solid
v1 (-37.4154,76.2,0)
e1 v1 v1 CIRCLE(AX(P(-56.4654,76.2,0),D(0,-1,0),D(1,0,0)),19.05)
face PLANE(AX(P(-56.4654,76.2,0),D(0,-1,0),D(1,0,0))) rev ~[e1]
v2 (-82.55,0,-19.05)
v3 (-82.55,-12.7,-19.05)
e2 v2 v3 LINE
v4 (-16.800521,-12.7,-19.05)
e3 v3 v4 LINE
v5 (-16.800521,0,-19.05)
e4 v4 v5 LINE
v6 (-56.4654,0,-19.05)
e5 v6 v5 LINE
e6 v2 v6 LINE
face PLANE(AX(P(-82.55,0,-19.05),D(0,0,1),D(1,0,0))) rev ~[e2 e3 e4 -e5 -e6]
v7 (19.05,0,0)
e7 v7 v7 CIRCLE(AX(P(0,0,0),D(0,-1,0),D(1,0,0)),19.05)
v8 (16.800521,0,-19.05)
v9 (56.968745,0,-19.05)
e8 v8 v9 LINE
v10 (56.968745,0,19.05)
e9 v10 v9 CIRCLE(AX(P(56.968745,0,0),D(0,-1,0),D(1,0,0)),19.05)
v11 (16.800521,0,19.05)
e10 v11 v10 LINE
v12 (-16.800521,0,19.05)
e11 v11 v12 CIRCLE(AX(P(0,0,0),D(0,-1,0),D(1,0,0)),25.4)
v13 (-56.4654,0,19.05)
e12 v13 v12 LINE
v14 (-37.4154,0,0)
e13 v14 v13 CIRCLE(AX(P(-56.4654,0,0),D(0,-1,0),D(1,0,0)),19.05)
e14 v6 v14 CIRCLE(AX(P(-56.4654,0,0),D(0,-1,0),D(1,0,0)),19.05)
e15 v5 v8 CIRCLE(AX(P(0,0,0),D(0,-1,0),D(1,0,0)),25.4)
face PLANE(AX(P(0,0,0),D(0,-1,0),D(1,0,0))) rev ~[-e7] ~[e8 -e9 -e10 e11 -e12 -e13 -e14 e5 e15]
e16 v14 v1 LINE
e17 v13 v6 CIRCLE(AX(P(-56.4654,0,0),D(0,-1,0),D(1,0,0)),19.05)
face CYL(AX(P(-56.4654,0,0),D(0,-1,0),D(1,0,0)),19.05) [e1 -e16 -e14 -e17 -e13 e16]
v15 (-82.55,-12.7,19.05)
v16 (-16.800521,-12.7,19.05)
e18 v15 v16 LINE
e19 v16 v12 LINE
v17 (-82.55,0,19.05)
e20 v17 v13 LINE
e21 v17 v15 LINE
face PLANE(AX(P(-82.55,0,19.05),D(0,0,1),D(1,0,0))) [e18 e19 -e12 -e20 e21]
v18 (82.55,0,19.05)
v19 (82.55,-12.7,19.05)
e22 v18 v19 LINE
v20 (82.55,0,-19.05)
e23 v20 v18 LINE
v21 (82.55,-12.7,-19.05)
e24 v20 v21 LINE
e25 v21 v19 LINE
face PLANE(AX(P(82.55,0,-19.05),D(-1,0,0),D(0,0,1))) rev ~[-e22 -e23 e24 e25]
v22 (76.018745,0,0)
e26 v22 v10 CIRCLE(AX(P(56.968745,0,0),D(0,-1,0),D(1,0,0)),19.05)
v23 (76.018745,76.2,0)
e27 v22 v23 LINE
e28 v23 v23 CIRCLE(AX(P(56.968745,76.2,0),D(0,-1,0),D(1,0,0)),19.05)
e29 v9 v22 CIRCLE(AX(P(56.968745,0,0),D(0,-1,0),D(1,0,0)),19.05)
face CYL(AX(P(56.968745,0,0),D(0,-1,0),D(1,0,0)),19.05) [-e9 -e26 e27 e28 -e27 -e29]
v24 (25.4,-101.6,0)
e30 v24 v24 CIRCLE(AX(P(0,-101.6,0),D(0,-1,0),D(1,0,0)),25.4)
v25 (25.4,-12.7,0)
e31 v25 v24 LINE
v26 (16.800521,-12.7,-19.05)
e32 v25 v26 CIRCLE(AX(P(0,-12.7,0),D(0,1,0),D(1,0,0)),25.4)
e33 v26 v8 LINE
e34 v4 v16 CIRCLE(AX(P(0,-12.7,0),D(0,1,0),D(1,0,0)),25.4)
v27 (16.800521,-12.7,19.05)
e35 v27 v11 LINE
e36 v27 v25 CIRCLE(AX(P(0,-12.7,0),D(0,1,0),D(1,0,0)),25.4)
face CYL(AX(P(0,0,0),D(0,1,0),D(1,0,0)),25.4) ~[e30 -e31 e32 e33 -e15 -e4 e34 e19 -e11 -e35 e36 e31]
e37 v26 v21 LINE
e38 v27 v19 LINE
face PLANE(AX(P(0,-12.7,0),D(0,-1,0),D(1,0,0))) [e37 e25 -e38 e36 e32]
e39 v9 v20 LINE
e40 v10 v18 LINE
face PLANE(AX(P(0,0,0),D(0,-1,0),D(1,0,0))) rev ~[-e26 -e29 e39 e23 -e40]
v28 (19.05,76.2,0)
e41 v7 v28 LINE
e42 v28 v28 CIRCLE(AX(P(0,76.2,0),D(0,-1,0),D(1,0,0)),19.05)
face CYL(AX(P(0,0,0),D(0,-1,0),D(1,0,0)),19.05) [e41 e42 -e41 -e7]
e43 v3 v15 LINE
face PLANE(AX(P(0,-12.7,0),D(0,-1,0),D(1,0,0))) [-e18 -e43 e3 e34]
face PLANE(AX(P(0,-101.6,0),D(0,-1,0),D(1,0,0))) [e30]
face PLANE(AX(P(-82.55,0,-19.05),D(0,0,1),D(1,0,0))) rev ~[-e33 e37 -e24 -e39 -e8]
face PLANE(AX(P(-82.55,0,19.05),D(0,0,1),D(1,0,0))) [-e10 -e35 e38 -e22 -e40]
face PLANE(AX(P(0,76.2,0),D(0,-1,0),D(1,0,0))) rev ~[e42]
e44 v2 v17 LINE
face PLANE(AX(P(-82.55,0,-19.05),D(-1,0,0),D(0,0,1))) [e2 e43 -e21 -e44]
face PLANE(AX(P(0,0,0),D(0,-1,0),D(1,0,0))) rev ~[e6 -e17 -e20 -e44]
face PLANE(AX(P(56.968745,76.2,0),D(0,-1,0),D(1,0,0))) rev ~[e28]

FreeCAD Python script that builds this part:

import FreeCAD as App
import Part
import Sketcher
Q = App.Units.Quantity

doc = App.newDocument("Part")
body = doc.addObject("PartDesign::Body", "Body")

sketch1 = body.newObject("Sketcher::SketchObject", "Sketch")
sketch1.AttachmentSupport = (doc.getObject("XZ_Plane"), [""])
sketch1.MapMode = "FlatFace"
sketch1.addGeometry([
    Part.LineSegment(App.Vector(-83, 19, 0), App.Vector(-83, -19, 0)),
    Part.LineSegment(App.Vector(-83, -19, 0), App.Vector(83, -19, 0)),
    Part.LineSegment(App.Vector(83, -19, 0), App.Vector(83, 19, 0)),
    Part.LineSegment(App.Vector(83, 19, 0), App.Vector(-83, 19, 0)),
], False)
sketch1.addConstraint([
    Sketcher.Constraint("Coincident", 0, 2, 1, 1),
    Sketcher.Constraint("Coincident", 1, 2, 2, 1),
    Sketcher.Constraint("Coincident", 2, 2, 3, 1),
    Sketcher.Constraint("Coincident", 3, 2, 0, 1),
    Sketcher.Constraint("Vertical", 0),
    Sketcher.Constraint("Horizontal", 1),
    Sketcher.Constraint("Vertical", 2),
    Sketcher.Constraint("Horizontal", 3),
    Sketcher.Constraint("Symmetric", 0, 2, 2, 2, -1, 1),
    Sketcher.Constraint("DistanceX", 1, 1, 1, 2, Q("6.5 in")),
    Sketcher.Constraint("DistanceY", 0, 2, 0, 1, Q("1.5 in")),
])
pad1 = body.newObject("PartDesign::Pad", "Pad")
pad1.Profile = sketch1
pad1.Length = Q("0.5 in")

sketch2 = body.newObject("Sketcher::SketchObject", "Sketch001")
sketch2.AttachmentSupport = (doc.getObject("XZ_Plane"), [""])
sketch2.MapMode = "FlatFace"
sketch2.addGeometry(Part.Circle(App.Vector(0, 0, 0), App.Vector(0, 0, 1), 25), False)
sketch2.addConstraint([
    Sketcher.Constraint("Coincident", 0, 3, -1, 1),
    Sketcher.Constraint("Diameter", 0, Q("2 in")),
])
pad2 = body.newObject("PartDesign::Pad", "Pad001")
pad2.Profile = sketch2
pad2.Length = Q("4 in")

sketch3 = body.newObject("Sketcher::SketchObject", "Sketch002")
sketch3.AttachmentSupport = (doc.getObject("XZ_Plane"), [""])
sketch3.MapMode = "FlatFace"
sketch3.addGeometry([
    Part.Circle(App.Vector(57, 0, 0), App.Vector(0, 0, 1), 19),
    Part.Circle(App.Vector(-56, 0, 0), App.Vector(0, 0, 1), 19),
    Part.Circle(App.Vector(0, 0, 0), App.Vector(0, 0, 1), 19),
], False)
sketch3.addConstraint([
    Sketcher.Constraint("Coincident", 2, 3, -1, 1),
    Sketcher.Constraint("Equal", 0, 1),
    Sketcher.Constraint("Equal", 1, 2),
    Sketcher.Constraint("PointOnObject", 0, 3, -1),
    Sketcher.Constraint("PointOnObject", 1, 3, -1),
    Sketcher.Constraint("Diameter", 0, Q("1.5 in")),
    Sketcher.Constraint("DistanceX", 1, 3, -1, 1, 56.4654),
    Sketcher.Constraint("DistanceX", -1, 1, 0, 3, 56.968745),
])
pad3 = body.newObject("PartDesign::Pad", "Pad002")
pad3.Profile = sketch3
pad3.Length = Q("3 in")
pad3.Reversed = True

doc.recompute()
